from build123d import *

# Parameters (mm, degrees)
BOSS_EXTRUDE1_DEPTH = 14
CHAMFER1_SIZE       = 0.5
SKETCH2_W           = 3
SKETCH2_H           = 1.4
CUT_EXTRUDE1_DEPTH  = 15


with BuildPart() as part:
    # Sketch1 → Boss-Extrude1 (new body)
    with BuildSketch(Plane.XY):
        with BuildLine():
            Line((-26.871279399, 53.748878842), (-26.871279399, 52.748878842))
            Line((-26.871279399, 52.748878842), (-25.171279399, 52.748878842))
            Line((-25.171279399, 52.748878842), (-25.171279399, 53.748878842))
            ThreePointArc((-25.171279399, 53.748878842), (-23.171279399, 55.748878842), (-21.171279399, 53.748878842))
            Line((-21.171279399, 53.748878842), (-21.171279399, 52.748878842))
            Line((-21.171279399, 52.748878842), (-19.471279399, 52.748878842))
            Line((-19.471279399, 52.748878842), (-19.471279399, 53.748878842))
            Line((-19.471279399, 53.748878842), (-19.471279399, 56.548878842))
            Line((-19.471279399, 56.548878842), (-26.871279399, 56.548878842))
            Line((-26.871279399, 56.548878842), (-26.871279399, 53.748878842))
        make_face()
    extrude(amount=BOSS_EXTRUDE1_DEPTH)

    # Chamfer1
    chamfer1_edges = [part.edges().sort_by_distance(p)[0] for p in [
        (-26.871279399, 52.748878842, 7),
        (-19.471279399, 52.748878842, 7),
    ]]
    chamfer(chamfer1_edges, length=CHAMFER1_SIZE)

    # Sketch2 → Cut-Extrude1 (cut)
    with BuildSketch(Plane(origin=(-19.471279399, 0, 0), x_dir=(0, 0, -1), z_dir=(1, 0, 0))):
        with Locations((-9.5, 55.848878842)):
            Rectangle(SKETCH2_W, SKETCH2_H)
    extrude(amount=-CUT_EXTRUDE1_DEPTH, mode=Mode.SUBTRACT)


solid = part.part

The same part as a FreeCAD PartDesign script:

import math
import FreeCAD as App
import Part
import Sketcher
Q = App.Units.Quantity


def edges_at(feature, points):
    """Names of the edges that pass closest to the given points."""
    edges = feature.Shape.Edges
    near = lambda p: min(range(len(edges)), key=lambda i: edges[i].distToShape(Part.Vertex(*p))[0])
    return sorted({f"Edge{near(p) + 1}" for p in points})


def add_polygon(sketch, points):
    """Adds a closed chain of lines whose ends are joined by coincident constraints."""
    first, n = sketch.GeometryCount, len(points)
    for a, b in zip(points, points[1:] + points[:1]):
        sketch.addGeometry(Part.LineSegment(App.Vector(*a, 0), App.Vector(*b, 0)), False)
    for i in range(n):
        sketch.addConstraint(Sketcher.Constraint("Coincident", first + i, 2, first + (i + 1) % n, 1))

doc = App.newDocument("Part")
body = doc.addObject("PartDesign::Body", "Body")

# Sketch on XY plane
sketch1 = body.newObject("Sketcher::SketchObject", "Sketch")
sketch1.AttachmentSupport = (doc.getObject("XY_Plane"), [""])
sketch1.MapMode = "FlatFace"
sketch1.addGeometry(Part.LineSegment(App.Vector(-26.871279, 52.748879, 0), App.Vector(-25.171279, 52.748879, 0)), False)
sketch1.addGeometry(Part.LineSegment(App.Vector(-25.171279, 52.748879, 0), App.Vector(-25.171279, 53.748879, 0)), False)
sketch1.addGeometry(Part.ArcOfCircle(Part.Circle(App.Vector(-23.171279, 53.748879, 0), App.Vector(0, 0, 1), 2), math.radians(0), math.radians(180)), False)
sketch1.addGeometry(Part.LineSegment(App.Vector(-21.171279, 53.748879, 0), App.Vector(-21.171279, 52.748879, 0)), False)
sketch1.addGeometry(Part.LineSegment(App.Vector(-21.171279, 52.748879, 0), App.Vector(-19.471279, 52.748879, 0)), False)
sketch1.addGeometry(Part.LineSegment(App.Vector(-19.471279, 52.748879, 0), App.Vector(-19.471279, 56.548879, 0)), False)
sketch1.addGeometry(Part.LineSegment(App.Vector(-19.471279, 56.548879, 0), App.Vector(-26.871279, 56.548879, 0)), False)
sketch1.addGeometry(Part.LineSegment(App.Vector(-26.871279, 56.548879, 0), App.Vector(-26.871279, 52.748879, 0)), False)
sketch1.addConstraint(Sketcher.Constraint("Coincident", 0, 2, 1, 1))
sketch1.addConstraint(Sketcher.Constraint("Tangent", 1, 2, 2, 2))
sketch1.addConstraint(Sketcher.Constraint("Tangent", 2, 1, 3, 1))
sketch1.addConstraint(Sketcher.Constraint("Coincident", 3, 2, 4, 1))
sketch1.addConstraint(Sketcher.Constraint("Coincident", 4, 2, 5, 1))
sketch1.addConstraint(Sketcher.Constraint("Coincident", 5, 2, 6, 1))
sketch1.addConstraint(Sketcher.Constraint("Coincident", 6, 2, 7, 1))
sketch1.addConstraint(Sketcher.Constraint("Coincident", 7, 2, 0, 1))
sketch1.addConstraint(Sketcher.Constraint("Horizontal", 0))
sketch1.addConstraint(Sketcher.Constraint("Vertical", 1))
sketch1.addConstraint(Sketcher.Constraint("Vertical", 3))
sketch1.addConstraint(Sketcher.Constraint("Horizontal", 4))
sketch1.addConstraint(Sketcher.Constraint("Vertical", 5))
sketch1.addConstraint(Sketcher.Constraint("Horizontal", 6))
sketch1.addConstraint(Sketcher.Constraint("Vertical", 7))
sketch1.addConstraint(Sketcher.Constraint("Horizontal", 0, 2, 3, 2))
sketch1.addConstraint(Sketcher.Constraint("Equal", 0, 4))
sketch1.addConstraint(Sketcher.Constraint("Radius", 2, Q("2 mm")))
sketch1.addConstraint(Sketcher.Constraint("DistanceY", 1, 1, 1, 2, Q("1 mm")))
sketch1.addConstraint(Sketcher.Constraint("DistanceX", 0, 1, 0, 2, Q("1.7 mm")))
sketch1.addConstraint(Sketcher.Constraint("DistanceY", 5, 1, 5, 2, Q("3.8 mm")))
sketch1.addConstraint(Sketcher.Constraint("DistanceX", 2, 3, -1, 1, Q("23.171279 mm")))
sketch1.addConstraint(Sketcher.Constraint("DistanceY", -1, 1, 2, 3, Q("53.748879 mm")))
pad1 = body.newObject("PartDesign::Pad", "Pad")
pad1.Profile = sketch1
pad1.Length = 14
doc.recompute()

chamfer = body.newObject("PartDesign::Chamfer", "Chamfer")
chamfer.Base = (pad1, edges_at(pad1, [(-26.871, 52.749, 7), (-19.471, 52.749, 7)]))
chamfer.Size = 0.5

# Sketch on YZ plane
sketch2 = body.newObject("Sketcher::SketchObject", "Sketch001")
sketch2.AttachmentSupport = (doc.getObject("YZ_Plane"), [""])
sketch2.MapMode = "FlatFace"
sketch2.AttachmentOffset = App.Placement(App.Vector(0, 0, -19.471279), App.Rotation())
add_polygon(sketch2, [(56.548879, 11), (55.148879, 11), (55.148879, 8), (56.548879, 8)])  # lines 0-3
sketch2.addConstraint(Sketcher.Constraint("Horizontal", 0))
sketch2.addConstraint(Sketcher.Constraint("Vertical", 1))
sketch2.addConstraint(Sketcher.Constraint("Horizontal", 2))
sketch2.addConstraint(Sketcher.Constraint("Vertical", 3))
sketch2.addConstraint(Sketcher.Constraint("DistanceY", 1, 2, 1, 1, Q("3 mm")))
sketch2.addConstraint(Sketcher.Constraint("DistanceX", 0, 2, 0, 1, Q("1.4 mm")))
sketch2.addConstraint(Sketcher.Constraint("DistanceY", -1, 1, 0, 2, Q("11 mm")))
sketch2.addConstraint(Sketcher.Constraint("DistanceX", -1, 1, 0, 2, Q("55.148879 mm")))
pocket1 = body.newObject("PartDesign::Pocket", "Pocket")
pocket1.Profile = sketch2
pocket1.Length = 15

doc.recompute()
